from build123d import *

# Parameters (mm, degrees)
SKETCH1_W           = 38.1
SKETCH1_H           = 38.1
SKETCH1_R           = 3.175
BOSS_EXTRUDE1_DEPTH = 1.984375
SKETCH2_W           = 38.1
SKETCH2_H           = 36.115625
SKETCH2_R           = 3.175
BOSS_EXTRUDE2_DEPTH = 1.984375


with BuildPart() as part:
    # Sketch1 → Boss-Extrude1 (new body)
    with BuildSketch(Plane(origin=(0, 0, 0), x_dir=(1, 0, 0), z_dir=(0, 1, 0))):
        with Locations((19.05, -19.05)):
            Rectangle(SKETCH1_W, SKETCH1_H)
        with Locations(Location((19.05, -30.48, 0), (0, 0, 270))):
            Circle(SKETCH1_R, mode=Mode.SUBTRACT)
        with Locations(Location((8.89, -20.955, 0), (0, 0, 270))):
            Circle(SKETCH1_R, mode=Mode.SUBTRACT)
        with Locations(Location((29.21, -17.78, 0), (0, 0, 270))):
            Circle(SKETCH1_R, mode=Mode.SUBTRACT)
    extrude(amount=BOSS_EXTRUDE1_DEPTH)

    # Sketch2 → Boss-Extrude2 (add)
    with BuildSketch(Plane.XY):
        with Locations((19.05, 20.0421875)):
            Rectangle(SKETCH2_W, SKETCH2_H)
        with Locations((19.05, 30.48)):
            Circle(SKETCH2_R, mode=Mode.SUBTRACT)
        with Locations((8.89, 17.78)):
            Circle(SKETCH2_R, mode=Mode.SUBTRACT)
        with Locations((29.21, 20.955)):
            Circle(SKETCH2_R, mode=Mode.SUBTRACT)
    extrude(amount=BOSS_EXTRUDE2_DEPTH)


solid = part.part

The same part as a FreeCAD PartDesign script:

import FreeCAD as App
import Part
import Sketcher
from FreeCAD import Vector
Q = App.Units.Quantity

doc = App.newDocument("Part")
body = doc.addObject("PartDesign::Body", "Body")

# Sketch on XZ plane
sketch1 = doc.addObject("Sketcher::SketchObject", "Sketch")
body.addObject(sketch1)
sketch1.AttachmentSupport = (doc.XZ_Plane, [""])
sketch1.MapMode = "FlatFace"
sketch1.addGeometry([
    Part.LineSegment(Vector(0, 0, 0), Vector(0, 38.1, 0)),  # 0
    Part.LineSegment(Vector(0, 38.1, 0), Vector(38.1, 38.1, 0)),  # 1
    Part.LineSegment(Vector(38.1, 38.1, 0), Vector(38.1, 0, 0)),  # 2
    Part.LineSegment(Vector(38.1, 0, 0), Vector(0, 0, 0)),  # 3
    Part.Circle(Vector(19.1, 30.5, 0), Vector(0, 0, 1), 3.2),  # 4
    Part.Circle(Vector(8.9, 21, 0), Vector(0, 0, 1), 3.2),  # 5
    Part.Circle(Vector(29.2, 17.8, 0), Vector(0, 0, 1), 3.2),  # 6
], False)
sketch1.addConstraint([
    Sketcher.Constraint("Coincident", 0, 2, 1, 1),
    Sketcher.Constraint("Coincident", 1, 2, 2, 1),
    Sketcher.Constraint("Coincident", 2, 2, 3, 1),
    Sketcher.Constraint("Coincident", 3, 2, 0, 1),
    Sketcher.Constraint("Vertical", 0),
    Sketcher.Constraint("Horizontal", 1),
    Sketcher.Constraint("Vertical", 2),
    Sketcher.Constraint("Horizontal", 3),
    Sketcher.Constraint("Coincident", 3, 2, -1, 1),
    Sketcher.Constraint("Equal", 4, 5),
    Sketcher.Constraint("Equal", 5, 6),
    Sketcher.Constraint("Equal", 3, 0),
    Sketcher.Constraint("Diameter", 4, Q("0.25 in")),
    Sketcher.Constraint("DistanceX", 1, 1, 1, 2, Q("1.5 in")),
    Sketcher.Constraint("DistanceY", -1, 1, 4, 3, Q("1.2 in")),
    Sketcher.Constraint("DistanceY", -1, 1, 6, 3, Q("0.7 in")),
    Sketcher.Constraint("DistanceX", 5, 3, 4, 3, Q("0.4 in")),
    Sketcher.Constraint("DistanceX", 4, 3, 6, 3, Q("0.4 in")),
    Sketcher.Constraint("DistanceX", -1, 1, 4, 3, Q("0.75 in")),
    Sketcher.Constraint("DistanceY", -1, 1, 5, 3, Q("0.825 in")),
])
pad1 = doc.addObject("PartDesign::Pad", "Pad")
body.addObject(pad1)
pad1.Profile = sketch1
pad1.Length = Q("0.078125 in")
pad1.Reversed = True

# Sketch on XY plane
sketch2 = doc.addObject("Sketcher::SketchObject", "Sketch001")
body.addObject(sketch2)
sketch2.AttachmentSupport = (doc.XY_Plane, [""])
sketch2.MapMode = "FlatFace"
sketch2.addGeometry([
    Part.LineSegment(Vector(0, 38.1, 0), Vector(0, 2, 0)),  # 0
    Part.LineSegment(Vector(0, 2, 0), Vector(38.1, 2, 0)),  # 1
    Part.LineSegment(Vector(38.1, 2, 0), Vector(38.1, 38.1, 0)),  # 2
    Part.LineSegment(Vector(38.1, 38.1, 0), Vector(0, 38.1, 0)),  # 3
    Part.Circle(Vector(8.9, 17.8, 0), Vector(0, 0, 1), 3.2),  # 4
    Part.Circle(Vector(29.2, 21, 0), Vector(0, 0, 1), 3.2),  # 5
    Part.Circle(Vector(19.1, 30.5, 0), Vector(0, 0, 1), 3.2),  # 6
], False)
sketch2.addConstraint([
    Sketcher.Constraint("Coincident", 0, 2, 1, 1),
    Sketcher.Constraint("Coincident", 1, 2, 2, 1),
    Sketcher.Constraint("Coincident", 2, 2, 3, 1),
    Sketcher.Constraint("Coincident", 3, 2, 0, 1),
    Sketcher.Constraint("Vertical", 0),
    Sketcher.Constraint("Horizontal", 1),
    Sketcher.Constraint("Vertical", 2),
    Sketcher.Constraint("Horizontal", 3),
    Sketcher.Constraint("Equal", 4, 5),
    Sketcher.Constraint("Equal", 5, 6),
    Sketcher.Constraint("PointOnObject", 0, 2, -2),
    Sketcher.Constraint("Diameter", 4, Q("0.25 in")),
    Sketcher.Constraint("DistanceX", 1, 1, 1, 2, Q("1.5 in")),
    Sketcher.Constraint("DistanceY", -1, 1, 4, 3, Q("0.7 in")),
    Sketcher.Constraint("DistanceY", -1, 1, 6, 3, Q("1.2 in")),
    Sketcher.Constraint("DistanceY", -1, 1, 2, 2, Q("1.5 in")),
    Sketcher.Constraint("DistanceX", 4, 3, 5, 3, Q("0.8 in")),
    Sketcher.Constraint("DistanceX", 6, 3, 5, 3, Q("0.4 in")),
    Sketcher.Constraint("DistanceY", 0, 2, 0, 1, Q("1.421875 in")),
    Sketcher.Constraint("DistanceX", -1, 1, 4, 3, Q("0.35 in")),
    Sketcher.Constraint("DistanceY", -1, 1, 5, 3, Q("0.825 in")),
])
pad2 = doc.addObject("PartDesign::Pad", "Pad001")
body.addObject(pad2)
pad2.Profile = sketch2
pad2.Length = Q("0.078125 in")

doc.recompute()
